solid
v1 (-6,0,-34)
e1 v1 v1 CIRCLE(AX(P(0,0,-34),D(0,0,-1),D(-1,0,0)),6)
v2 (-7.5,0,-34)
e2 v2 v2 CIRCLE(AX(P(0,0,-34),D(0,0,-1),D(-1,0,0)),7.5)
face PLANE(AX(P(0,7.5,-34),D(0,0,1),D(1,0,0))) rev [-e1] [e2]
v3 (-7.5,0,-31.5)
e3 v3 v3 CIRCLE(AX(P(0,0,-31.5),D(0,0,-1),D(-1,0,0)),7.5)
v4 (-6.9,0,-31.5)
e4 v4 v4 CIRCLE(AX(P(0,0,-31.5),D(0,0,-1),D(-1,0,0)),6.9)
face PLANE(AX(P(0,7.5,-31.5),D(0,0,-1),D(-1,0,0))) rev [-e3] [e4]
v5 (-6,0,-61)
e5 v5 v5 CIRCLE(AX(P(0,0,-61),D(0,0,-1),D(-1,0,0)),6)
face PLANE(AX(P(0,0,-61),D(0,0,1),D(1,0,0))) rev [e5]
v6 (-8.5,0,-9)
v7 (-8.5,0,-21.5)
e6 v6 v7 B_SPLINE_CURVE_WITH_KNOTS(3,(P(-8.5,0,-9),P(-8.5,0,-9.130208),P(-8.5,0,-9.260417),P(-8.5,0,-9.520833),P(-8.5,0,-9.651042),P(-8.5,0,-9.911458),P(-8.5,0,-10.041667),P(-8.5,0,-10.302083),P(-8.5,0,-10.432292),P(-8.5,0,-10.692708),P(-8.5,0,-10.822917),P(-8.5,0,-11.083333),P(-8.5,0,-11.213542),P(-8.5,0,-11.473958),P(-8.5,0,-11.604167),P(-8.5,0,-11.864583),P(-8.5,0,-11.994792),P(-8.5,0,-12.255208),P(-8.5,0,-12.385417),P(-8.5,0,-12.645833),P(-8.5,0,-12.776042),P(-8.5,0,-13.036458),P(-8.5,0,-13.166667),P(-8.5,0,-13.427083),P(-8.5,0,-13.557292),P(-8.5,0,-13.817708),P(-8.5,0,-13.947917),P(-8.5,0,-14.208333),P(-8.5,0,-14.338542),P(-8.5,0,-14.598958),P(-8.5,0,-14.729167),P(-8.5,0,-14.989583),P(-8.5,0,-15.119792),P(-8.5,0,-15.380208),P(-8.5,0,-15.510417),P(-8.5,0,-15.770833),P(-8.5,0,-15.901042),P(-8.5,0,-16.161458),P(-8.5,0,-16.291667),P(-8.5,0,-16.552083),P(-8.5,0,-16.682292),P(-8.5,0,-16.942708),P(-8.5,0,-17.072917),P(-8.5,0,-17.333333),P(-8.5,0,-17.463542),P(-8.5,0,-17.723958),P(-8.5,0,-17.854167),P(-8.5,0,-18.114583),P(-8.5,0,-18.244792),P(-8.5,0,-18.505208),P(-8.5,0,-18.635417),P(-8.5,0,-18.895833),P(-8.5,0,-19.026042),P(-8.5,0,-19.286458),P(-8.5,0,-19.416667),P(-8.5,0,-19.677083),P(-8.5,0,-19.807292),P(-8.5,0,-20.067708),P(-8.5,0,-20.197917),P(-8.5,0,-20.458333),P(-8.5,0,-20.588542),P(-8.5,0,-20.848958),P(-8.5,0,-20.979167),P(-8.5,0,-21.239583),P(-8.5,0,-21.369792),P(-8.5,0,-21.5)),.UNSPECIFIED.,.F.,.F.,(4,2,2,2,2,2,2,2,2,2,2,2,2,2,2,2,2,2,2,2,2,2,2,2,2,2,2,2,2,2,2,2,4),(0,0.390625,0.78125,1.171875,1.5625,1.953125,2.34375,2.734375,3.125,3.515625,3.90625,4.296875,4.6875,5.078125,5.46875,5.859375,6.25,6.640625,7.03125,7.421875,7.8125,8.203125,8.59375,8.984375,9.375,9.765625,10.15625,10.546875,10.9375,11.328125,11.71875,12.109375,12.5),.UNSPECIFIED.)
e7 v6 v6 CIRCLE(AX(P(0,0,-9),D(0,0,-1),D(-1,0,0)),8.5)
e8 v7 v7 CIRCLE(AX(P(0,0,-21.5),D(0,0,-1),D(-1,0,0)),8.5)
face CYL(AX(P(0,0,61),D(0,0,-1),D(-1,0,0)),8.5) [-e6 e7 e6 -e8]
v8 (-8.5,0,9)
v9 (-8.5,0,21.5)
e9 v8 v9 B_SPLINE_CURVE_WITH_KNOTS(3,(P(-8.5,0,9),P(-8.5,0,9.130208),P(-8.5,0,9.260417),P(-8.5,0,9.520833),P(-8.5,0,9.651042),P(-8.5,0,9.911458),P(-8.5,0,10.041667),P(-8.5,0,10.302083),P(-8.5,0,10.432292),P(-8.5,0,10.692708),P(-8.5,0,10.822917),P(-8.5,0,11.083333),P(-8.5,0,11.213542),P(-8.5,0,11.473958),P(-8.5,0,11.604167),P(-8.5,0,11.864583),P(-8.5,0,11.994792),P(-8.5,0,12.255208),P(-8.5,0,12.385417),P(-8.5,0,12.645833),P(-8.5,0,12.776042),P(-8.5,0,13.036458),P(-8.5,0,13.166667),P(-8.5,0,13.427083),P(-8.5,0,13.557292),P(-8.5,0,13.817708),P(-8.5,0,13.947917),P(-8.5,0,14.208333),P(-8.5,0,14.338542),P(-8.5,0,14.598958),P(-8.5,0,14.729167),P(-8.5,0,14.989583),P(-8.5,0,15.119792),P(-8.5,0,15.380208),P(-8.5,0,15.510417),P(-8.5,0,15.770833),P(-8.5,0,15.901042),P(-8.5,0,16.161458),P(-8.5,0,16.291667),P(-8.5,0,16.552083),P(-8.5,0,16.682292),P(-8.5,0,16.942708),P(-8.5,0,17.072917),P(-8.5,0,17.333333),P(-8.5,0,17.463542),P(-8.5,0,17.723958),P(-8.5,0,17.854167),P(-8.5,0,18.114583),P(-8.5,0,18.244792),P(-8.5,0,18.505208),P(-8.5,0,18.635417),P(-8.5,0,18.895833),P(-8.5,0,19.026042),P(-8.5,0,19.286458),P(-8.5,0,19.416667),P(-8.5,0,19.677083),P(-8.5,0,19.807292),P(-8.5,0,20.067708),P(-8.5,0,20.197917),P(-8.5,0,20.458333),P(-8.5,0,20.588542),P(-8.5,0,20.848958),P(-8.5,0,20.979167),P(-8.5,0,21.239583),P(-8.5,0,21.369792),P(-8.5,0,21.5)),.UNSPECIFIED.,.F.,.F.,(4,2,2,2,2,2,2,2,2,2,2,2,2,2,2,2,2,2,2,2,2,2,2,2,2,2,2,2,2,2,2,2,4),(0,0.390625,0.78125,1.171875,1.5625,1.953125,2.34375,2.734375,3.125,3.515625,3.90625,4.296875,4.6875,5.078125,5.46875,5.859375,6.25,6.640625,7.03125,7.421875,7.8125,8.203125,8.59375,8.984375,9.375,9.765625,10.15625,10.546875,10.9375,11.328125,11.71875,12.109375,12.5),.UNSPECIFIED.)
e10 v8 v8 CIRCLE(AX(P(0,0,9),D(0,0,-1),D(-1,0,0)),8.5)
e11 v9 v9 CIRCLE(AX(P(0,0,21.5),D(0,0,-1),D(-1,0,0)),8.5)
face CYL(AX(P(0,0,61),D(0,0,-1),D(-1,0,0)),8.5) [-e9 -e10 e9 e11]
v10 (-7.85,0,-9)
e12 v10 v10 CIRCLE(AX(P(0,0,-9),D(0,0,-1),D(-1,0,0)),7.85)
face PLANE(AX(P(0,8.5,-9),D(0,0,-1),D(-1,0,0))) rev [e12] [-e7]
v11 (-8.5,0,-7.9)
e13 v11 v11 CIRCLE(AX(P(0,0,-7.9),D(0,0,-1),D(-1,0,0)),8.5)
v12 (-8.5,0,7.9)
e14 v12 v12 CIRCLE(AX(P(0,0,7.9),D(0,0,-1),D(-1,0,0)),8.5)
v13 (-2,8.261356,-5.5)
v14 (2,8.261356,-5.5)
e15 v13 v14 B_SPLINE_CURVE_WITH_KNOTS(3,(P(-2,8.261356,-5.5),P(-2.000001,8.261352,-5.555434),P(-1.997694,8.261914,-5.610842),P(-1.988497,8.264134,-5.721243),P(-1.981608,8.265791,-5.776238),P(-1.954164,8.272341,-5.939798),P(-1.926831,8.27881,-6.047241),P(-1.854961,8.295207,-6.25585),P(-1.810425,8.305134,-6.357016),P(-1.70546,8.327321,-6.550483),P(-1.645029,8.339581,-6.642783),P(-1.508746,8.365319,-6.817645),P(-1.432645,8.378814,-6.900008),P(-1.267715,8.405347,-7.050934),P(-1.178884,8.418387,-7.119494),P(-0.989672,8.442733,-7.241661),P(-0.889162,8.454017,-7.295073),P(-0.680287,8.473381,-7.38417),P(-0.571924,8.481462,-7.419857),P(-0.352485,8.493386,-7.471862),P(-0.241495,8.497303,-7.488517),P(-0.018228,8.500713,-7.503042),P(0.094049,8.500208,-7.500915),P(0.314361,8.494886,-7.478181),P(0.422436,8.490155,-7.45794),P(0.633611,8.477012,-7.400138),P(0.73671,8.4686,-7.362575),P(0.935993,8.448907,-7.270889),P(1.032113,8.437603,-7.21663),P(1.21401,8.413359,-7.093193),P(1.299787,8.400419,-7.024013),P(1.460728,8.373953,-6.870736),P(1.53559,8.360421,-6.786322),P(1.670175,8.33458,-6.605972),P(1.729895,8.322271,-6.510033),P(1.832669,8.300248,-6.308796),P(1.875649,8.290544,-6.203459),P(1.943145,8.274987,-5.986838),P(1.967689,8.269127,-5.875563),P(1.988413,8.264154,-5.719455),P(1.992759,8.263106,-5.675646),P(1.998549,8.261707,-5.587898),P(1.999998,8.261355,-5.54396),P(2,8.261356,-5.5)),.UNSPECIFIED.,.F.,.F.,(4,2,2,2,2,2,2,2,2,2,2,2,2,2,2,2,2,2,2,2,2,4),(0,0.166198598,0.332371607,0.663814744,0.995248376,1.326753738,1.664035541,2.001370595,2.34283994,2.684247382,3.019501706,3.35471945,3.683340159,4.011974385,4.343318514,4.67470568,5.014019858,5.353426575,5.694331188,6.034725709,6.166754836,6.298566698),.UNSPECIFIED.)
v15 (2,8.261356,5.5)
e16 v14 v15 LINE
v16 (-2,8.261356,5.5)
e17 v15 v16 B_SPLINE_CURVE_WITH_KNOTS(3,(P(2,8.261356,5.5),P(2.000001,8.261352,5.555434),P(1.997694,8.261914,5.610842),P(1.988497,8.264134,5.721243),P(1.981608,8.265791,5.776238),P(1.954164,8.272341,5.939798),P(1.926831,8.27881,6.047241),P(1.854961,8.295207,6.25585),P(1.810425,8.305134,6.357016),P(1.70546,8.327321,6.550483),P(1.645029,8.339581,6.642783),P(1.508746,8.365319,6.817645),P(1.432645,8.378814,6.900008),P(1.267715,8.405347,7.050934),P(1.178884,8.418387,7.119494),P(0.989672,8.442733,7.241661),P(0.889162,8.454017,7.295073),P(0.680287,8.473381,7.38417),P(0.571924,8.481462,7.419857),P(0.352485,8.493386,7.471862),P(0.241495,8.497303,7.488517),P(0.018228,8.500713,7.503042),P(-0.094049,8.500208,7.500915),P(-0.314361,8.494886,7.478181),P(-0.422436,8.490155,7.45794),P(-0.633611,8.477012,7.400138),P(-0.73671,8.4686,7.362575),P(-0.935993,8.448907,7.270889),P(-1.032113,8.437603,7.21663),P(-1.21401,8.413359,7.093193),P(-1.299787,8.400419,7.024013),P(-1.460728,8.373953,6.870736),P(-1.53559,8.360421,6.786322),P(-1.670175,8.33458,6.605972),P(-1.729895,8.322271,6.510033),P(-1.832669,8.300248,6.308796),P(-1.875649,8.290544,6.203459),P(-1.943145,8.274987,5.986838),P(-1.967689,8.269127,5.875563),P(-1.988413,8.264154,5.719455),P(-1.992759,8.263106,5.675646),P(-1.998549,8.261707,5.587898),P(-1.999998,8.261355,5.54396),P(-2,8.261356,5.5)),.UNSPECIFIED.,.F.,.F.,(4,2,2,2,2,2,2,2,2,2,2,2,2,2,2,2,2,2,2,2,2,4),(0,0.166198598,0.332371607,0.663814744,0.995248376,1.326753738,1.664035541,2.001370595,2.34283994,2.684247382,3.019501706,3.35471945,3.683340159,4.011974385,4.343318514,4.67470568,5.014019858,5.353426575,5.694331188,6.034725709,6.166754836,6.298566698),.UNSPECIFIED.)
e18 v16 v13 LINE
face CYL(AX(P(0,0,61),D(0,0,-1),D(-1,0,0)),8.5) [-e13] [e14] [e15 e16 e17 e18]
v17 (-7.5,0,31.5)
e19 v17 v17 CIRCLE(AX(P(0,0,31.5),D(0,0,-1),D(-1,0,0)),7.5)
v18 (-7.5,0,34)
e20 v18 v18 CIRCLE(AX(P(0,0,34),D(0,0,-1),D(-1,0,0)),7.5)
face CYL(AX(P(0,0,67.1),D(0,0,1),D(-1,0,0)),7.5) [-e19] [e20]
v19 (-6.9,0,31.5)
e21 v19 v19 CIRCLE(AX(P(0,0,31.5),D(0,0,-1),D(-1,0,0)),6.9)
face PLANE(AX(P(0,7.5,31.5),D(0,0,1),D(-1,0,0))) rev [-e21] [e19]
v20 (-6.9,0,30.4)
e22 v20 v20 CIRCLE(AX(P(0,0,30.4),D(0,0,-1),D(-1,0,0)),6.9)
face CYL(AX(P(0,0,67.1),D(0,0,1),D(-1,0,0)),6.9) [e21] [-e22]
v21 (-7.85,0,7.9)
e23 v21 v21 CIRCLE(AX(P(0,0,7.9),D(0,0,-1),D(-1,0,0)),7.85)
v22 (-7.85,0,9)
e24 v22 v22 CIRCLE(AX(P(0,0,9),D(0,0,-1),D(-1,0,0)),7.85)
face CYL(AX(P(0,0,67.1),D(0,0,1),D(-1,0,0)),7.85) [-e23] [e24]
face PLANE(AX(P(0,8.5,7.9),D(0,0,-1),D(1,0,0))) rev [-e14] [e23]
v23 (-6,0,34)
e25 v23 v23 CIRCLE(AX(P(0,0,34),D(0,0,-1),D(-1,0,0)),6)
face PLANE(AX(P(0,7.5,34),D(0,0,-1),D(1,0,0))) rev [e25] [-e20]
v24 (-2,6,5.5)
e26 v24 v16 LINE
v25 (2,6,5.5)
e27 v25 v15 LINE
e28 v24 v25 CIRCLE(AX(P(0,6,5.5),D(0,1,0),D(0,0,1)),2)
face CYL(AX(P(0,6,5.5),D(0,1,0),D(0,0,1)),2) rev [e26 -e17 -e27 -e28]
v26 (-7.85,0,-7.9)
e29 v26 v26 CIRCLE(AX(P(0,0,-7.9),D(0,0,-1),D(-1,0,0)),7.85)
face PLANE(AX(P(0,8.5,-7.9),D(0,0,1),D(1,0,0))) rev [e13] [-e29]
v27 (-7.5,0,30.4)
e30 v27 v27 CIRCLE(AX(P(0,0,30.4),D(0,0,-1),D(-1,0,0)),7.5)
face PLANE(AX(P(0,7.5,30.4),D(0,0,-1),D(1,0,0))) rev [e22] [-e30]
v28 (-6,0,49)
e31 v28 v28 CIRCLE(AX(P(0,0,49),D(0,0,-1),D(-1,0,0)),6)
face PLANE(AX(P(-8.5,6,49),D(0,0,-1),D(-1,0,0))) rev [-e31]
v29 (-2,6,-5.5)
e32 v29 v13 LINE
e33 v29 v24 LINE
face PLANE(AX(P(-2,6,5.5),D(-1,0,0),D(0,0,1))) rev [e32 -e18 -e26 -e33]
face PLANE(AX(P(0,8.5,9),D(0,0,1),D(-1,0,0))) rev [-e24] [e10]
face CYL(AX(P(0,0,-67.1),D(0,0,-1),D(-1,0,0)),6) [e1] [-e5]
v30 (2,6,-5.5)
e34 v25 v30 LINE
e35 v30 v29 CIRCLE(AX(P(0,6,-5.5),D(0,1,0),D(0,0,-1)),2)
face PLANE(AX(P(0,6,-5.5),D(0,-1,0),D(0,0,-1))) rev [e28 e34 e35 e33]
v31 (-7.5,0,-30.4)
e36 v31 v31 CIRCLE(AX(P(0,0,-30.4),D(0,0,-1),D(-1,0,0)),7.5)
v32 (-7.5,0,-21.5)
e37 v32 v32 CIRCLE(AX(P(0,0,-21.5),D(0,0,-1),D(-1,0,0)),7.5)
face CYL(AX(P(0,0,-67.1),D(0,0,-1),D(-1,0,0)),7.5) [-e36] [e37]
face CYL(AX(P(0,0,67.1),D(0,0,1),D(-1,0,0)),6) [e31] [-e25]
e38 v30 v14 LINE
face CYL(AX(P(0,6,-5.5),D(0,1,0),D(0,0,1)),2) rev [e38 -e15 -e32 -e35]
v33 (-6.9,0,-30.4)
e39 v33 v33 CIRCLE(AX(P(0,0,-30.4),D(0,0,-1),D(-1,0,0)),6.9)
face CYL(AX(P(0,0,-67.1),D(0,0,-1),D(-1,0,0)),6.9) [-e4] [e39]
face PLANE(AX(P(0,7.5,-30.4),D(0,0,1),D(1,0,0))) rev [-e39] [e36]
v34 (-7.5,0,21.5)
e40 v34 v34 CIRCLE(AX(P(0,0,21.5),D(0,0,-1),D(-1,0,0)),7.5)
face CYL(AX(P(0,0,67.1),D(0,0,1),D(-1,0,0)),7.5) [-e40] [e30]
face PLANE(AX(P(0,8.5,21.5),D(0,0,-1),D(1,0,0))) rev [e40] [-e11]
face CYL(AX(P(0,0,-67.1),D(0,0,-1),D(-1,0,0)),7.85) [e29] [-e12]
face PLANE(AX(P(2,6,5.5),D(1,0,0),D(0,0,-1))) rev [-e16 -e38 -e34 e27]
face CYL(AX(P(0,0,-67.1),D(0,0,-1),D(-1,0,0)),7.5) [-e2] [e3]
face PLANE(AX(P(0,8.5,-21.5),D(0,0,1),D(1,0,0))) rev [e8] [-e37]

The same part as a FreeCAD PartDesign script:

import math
import FreeCAD as App
import Part
import Sketcher

V = App.Vector
Q = App.Units.Quantity


def add_polygon(sketch, points):
    """Adds a closed chain of lines whose ends are joined by coincident constraints."""
    first, n = sketch.GeometryCount, len(points)
    for a, b in zip(points, points[1:] + points[:1]):
        sketch.addGeometry(Part.LineSegment(App.Vector(*a, 0), App.Vector(*b, 0)), False)
    for i in range(n):
        sketch.addConstraint(Sketcher.Constraint("Coincident", first + i, 2, first + (i + 1) % n, 1))

doc = App.newDocument("Part")
params = doc.addObject("Spreadsheet::Sheet", "Params")
for row, (alias, value) in enumerate([
    ("sketch1_diameter", "17 mm"),
    ("pad1_length", "122 mm"),
    ("sketch2_width", "1 mm"),
    ("sketch2_height", "39.5 mm"),
    ("groove_angle", "360 deg"),
    ("sketch3_height", "27 mm"),
    ("sketch3_width", "1.5 mm"),
    ("groove2_angle", "360 deg"),
    ("sketch4_width", "0.6 mm"),
    ("sketch4_height", "1.1 mm"),
    ("groove3_angle", "360 deg"),
    ("sketch5_height", "1.1 mm"),
    ("sketch5_width", "0.65 mm"),
    ("groove4_angle", "360 deg"),
    ("sketch6_width", "12 mm"),
    ("sketch7_radius", "2 mm"),
    ("sketch7_height", "11 mm"),
    ("pocket2_length", "2.5 mm"),
], start=1):
    params.set(f"A{row}", alias)
    params.set(f"B{row}", "=" + value)
    params.setAlias(f"B{row}", alias)

body = doc.addObject("PartDesign::Body", "Body")

sketch1 = body.newObject("Sketcher::SketchObject", "Sketch")
sketch1.AttachmentSupport = (doc.getObject("XY_Plane"), [""])
sketch1.MapMode = "FlatFace"
sketch1.addGeometry(Part.Circle(V(0, 0, 0), V(0, 0, 1), 8), False)
sketch1.addConstraint(Sketcher.Constraint("Coincident", 0, 3, -1, 1))
sketch1.addConstraint(Sketcher.Constraint("Diameter", 0, Q("17 mm")))
sketch1.setExpression("Constraints[1]", "Params.sketch1_diameter")
pad1 = body.newObject("PartDesign::Pad", "Pad")
pad1.Profile = sketch1
pad1.setExpression("Length", "Params.pad1_length")
pad1.Midplane = True

sketch2 = body.newObject("Sketcher::SketchObject", "Sketch001")
sketch2.AttachmentSupport = (doc.getObject("YZ_Plane"), [""])
sketch2.MapMode = "FlatFace"
add_polygon(sketch2, [(8.5, -21.5), (7.5, -21.5), (7.5, -61), (8.5, -61)])
sketch2.addConstraint(Sketcher.Constraint("Horizontal", 0))
sketch2.addConstraint(Sketcher.Constraint("Vertical", 1))
sketch2.addConstraint(Sketcher.Constraint("Horizontal", 2))
sketch2.addConstraint(Sketcher.Constraint("Vertical", 3))
sketch2.addConstraint(Sketcher.Constraint("DistanceX", 0, 2, 0, 1, Q("1 mm")))
sketch2.addConstraint(Sketcher.Constraint("DistanceY", 1, 2, 1, 1, Q("39.5 mm")))
sketch2.addConstraint(Sketcher.Constraint("DistanceY", 1, 2, -1, 1, Q("61 mm")))
sketch2.addConstraint(Sketcher.Constraint("DistanceX", -1, 1, 0, 2, Q("7.5 mm")))
sketch2.setExpression("Constraints[8]", "Params.sketch2_width")
sketch2.setExpression("Constraints[9]", "Params.sketch2_height")
groove = body.newObject("PartDesign::Groove", "Groove")
groove.Profile = sketch2
groove.ReferenceAxis = (sketch2, ["V_Axis"])
groove.setExpression("Angle", "Params.groove_angle")
doc.recompute()

mirrored = body.newObject("PartDesign::Mirrored", "Mirrored")
mirrored.Originals = [groove]
mirrored.MirrorPlane = (doc.getObject("XY_Plane"), [""])
body.Tip = mirrored

sketch3 = body.newObject("Sketcher::SketchObject", "Sketch002")
sketch3.AttachmentSupport = (doc.getObject("YZ_Plane"), [""])
sketch3.MapMode = "FlatFace"
add_polygon(sketch3, [(7.5, -34), (6, -34), (6, -61), (7.5, -61)])
sketch3.addConstraint(Sketcher.Constraint("Horizontal", 0))
sketch3.addConstraint(Sketcher.Constraint("Vertical", 1))
sketch3.addConstraint(Sketcher.Constraint("Horizontal", 2))
sketch3.addConstraint(Sketcher.Constraint("Vertical", 3))
sketch3.addConstraint(Sketcher.Constraint("DistanceY", 1, 2, 1, 1, Q("27 mm")))
sketch3.addConstraint(Sketcher.Constraint("DistanceX", 0, 2, 0, 1, Q("1.5 mm")))
sketch3.addConstraint(Sketcher.Constraint("DistanceX", -1, 1, 0, 2, Q("6 mm")))
sketch3.addConstraint(Sketcher.Constraint("DistanceY", 0, 2, -1, 1, Q("34 mm")))
sketch3.setExpression("Constraints[8]", "Params.sketch3_height")
sketch3.setExpression("Constraints[9]", "Params.sketch3_width")
groove2 = body.newObject("PartDesign::Groove", "Groove001")
groove2.Profile = sketch3
groove2.ReferenceAxis = (sketch3, ["V_Axis"])
groove2.setExpression("Angle", "Params.groove2_angle")
doc.recompute()

mirrored2 = body.newObject("PartDesign::Mirrored", "Mirrored001")
mirrored2.Originals = [groove2]
mirrored2.MirrorPlane = (doc.getObject("XY_Plane"), [""])
body.Tip = mirrored2

sketch4 = body.newObject("Sketcher::SketchObject", "Sketch003")
sketch4.AttachmentSupport = (doc.getObject("YZ_Plane"), [""])
sketch4.MapMode = "FlatFace"
add_polygon(sketch4, [(7.5, -30.4), (6.9, -30.4), (6.9, -31.5), (7.5, -31.5)])
sketch4.addConstraint(Sketcher.Constraint("Horizontal", 0))
sketch4.addConstraint(Sketcher.Constraint("Vertical", 1))
sketch4.addConstraint(Sketcher.Constraint("Horizontal", 2))
sketch4.addConstraint(Sketcher.Constraint("Vertical", 3))
sketch4.addConstraint(Sketcher.Constraint("DistanceX", 0, 2, 0, 1, Q("0.6 mm")))
sketch4.addConstraint(Sketcher.Constraint("DistanceY", 1, 2, 1, 1, Q("1.1 mm")))
sketch4.addConstraint(Sketcher.Constraint("DistanceX", -1, 1, 0, 2, Q("6.9 mm")))
sketch4.addConstraint(Sketcher.Constraint("DistanceY", 0, 2, -1, 1, Q("30.4 mm")))
sketch4.setExpression("Constraints[8]", "Params.sketch4_width")
sketch4.setExpression("Constraints[9]", "Params.sketch4_height")
groove3 = body.newObject("PartDesign::Groove", "Groove002")
groove3.Profile = sketch4
groove3.ReferenceAxis = (sketch4, ["V_Axis"])
groove3.setExpression("Angle", "Params.groove3_angle")
doc.recompute()

mirrored3 = body.newObject("PartDesign::Mirrored", "Mirrored002")
mirrored3.Originals = [groove3]
mirrored3.MirrorPlane = (doc.getObject("XY_Plane"), [""])
body.Tip = mirrored3

sketch5 = body.newObject("Sketcher::SketchObject", "Sketch004")
sketch5.AttachmentSupport = (doc.getObject("YZ_Plane"), [""])
sketch5.MapMode = "FlatFace"
add_polygon(sketch5, [(8.5, -7.9), (7.8, -7.9), (7.8, -9), (8.5, -9)])
sketch5.addConstraint(Sketcher.Constraint("Horizontal", 0))
sketch5.addConstraint(Sketcher.Constraint("Vertical", 1))
sketch5.addConstraint(Sketcher.Constraint("Horizontal", 2))
sketch5.addConstraint(Sketcher.Constraint("Vertical", 3))
sketch5.addConstraint(Sketcher.Constraint("DistanceY", 1, 2, 1, 1, Q("1.1 mm")))
sketch5.addConstraint(Sketcher.Constraint("DistanceY", 1, 2, -1, 1, Q("9 mm")))
sketch5.addConstraint(Sketcher.Constraint("DistanceX", 0, 2, 0, 1, Q("0.65 mm")))
sketch5.addConstraint(Sketcher.Constraint("DistanceX", -1, 1, 2, 2, Q("8.5 mm")))
sketch5.setExpression("Constraints[8]", "Params.sketch5_height")
sketch5.setExpression("Constraints[10]", "Params.sketch5_width")
groove4 = body.newObject("PartDesign::Groove", "Groove003")
groove4.Profile = sketch5
groove4.ReferenceAxis = (sketch5, ["V_Axis"])
groove4.setExpression("Angle", "Params.groove4_angle")
doc.recompute()

mirrored4 = body.newObject("PartDesign::Mirrored", "Mirrored003")
mirrored4.Originals = [groove4]
mirrored4.MirrorPlane = (doc.getObject("XY_Plane"), [""])
body.Tip = mirrored4

sketch6 = body.newObject("Sketcher::SketchObject", "Sketch005")
sketch6.AttachmentSupport = (doc.getObject("YZ_Plane"), [""])
sketch6.MapMode = "FlatFace"
add_polygon(sketch6, [(6, 61), (-6, 61), (-6, 49), (6, 49)])
sketch6.addConstraint(Sketcher.Constraint("Horizontal", 0))
sketch6.addConstraint(Sketcher.Constraint("Vertical", 1))
sketch6.addConstraint(Sketcher.Constraint("Horizontal", 2))
sketch6.addConstraint(Sketcher.Constraint("Vertical", 3))
sketch6.addConstraint(Sketcher.Constraint("Equal", 2, 1))
sketch6.addConstraint(Sketcher.Constraint("DistanceX", 0, 2, 0, 1, Q("12 mm")))
sketch6.addConstraint(Sketcher.Constraint("DistanceX", 0, 2, -1, 1, Q("6 mm")))
sketch6.addConstraint(Sketcher.Constraint("DistanceY", -1, 1, 0, 2, Q("61 mm")))
sketch6.setExpression("Constraints[9]", "Params.sketch6_width")
pocket1 = body.newObject("PartDesign::Pocket", "Pocket")
pocket1.Profile = sketch6
pocket1.Type = "ThroughAll"
pocket1.Midplane = True

sketch7 = body.newObject("Sketcher::SketchObject", "Sketch006")
sketch7.AttachmentSupport = (doc.getObject("XZ_Plane"), [""])
sketch7.MapMode = "FlatFace"
sketch7.AttachmentOffset = App.Placement(V(0, 0, -8.5), App.Rotation())
sketch7.addGeometry(Part.LineSegment(V(-2, -5.5, 0), V(-2, 5.5, 0)), False)
sketch7.addGeometry(Part.ArcOfCircle(Part.Circle(V(0, 5.5, 0), V(0, 0, 1), 2), math.radians(0), math.radians(180)), False)
sketch7.addGeometry(Part.LineSegment(V(2, 5.5, 0), V(2, -5.5, 0)), False)
sketch7.addGeometry(Part.ArcOfCircle(Part.Circle(V(0, -5.5, 0), V(0, 0, 1), 2), math.radians(180), math.radians(360)), False)
sketch7.addConstraint(Sketcher.Constraint("Tangent", 0, 2, 1, 2))
sketch7.addConstraint(Sketcher.Constraint("Tangent", 1, 1, 2, 1))
sketch7.addConstraint(Sketcher.Constraint("Tangent", 2, 2, 3, 2))
sketch7.addConstraint(Sketcher.Constraint("Tangent", 3, 1, 0, 1))
sketch7.addConstraint(Sketcher.Constraint("Vertical", 0))
sketch7.addConstraint(Sketcher.Constraint("Vertical", 2))
sketch7.addConstraint(Sketcher.Constraint("Symmetric", 1, 3, 3, 3, -1, 1))
sketch7.addConstraint(Sketcher.Constraint("Radius", 1, Q("2 mm")))
sketch7.addConstraint(Sketcher.Constraint("DistanceY", 0, 1, 0, 2, Q("11 mm")))
sketch7.setExpression("Constraints[7]", "Params.sketch7_radius")
sketch7.setExpression("Constraints[8]", "Params.sketch7_height")
pocket2 = body.newObject("PartDesign::Pocket", "Pocket001")
pocket2.Profile = sketch7
pocket2.setExpression("Length", "Params.pocket2_length")
pocket2.Reversed = True

doc.recompute()
